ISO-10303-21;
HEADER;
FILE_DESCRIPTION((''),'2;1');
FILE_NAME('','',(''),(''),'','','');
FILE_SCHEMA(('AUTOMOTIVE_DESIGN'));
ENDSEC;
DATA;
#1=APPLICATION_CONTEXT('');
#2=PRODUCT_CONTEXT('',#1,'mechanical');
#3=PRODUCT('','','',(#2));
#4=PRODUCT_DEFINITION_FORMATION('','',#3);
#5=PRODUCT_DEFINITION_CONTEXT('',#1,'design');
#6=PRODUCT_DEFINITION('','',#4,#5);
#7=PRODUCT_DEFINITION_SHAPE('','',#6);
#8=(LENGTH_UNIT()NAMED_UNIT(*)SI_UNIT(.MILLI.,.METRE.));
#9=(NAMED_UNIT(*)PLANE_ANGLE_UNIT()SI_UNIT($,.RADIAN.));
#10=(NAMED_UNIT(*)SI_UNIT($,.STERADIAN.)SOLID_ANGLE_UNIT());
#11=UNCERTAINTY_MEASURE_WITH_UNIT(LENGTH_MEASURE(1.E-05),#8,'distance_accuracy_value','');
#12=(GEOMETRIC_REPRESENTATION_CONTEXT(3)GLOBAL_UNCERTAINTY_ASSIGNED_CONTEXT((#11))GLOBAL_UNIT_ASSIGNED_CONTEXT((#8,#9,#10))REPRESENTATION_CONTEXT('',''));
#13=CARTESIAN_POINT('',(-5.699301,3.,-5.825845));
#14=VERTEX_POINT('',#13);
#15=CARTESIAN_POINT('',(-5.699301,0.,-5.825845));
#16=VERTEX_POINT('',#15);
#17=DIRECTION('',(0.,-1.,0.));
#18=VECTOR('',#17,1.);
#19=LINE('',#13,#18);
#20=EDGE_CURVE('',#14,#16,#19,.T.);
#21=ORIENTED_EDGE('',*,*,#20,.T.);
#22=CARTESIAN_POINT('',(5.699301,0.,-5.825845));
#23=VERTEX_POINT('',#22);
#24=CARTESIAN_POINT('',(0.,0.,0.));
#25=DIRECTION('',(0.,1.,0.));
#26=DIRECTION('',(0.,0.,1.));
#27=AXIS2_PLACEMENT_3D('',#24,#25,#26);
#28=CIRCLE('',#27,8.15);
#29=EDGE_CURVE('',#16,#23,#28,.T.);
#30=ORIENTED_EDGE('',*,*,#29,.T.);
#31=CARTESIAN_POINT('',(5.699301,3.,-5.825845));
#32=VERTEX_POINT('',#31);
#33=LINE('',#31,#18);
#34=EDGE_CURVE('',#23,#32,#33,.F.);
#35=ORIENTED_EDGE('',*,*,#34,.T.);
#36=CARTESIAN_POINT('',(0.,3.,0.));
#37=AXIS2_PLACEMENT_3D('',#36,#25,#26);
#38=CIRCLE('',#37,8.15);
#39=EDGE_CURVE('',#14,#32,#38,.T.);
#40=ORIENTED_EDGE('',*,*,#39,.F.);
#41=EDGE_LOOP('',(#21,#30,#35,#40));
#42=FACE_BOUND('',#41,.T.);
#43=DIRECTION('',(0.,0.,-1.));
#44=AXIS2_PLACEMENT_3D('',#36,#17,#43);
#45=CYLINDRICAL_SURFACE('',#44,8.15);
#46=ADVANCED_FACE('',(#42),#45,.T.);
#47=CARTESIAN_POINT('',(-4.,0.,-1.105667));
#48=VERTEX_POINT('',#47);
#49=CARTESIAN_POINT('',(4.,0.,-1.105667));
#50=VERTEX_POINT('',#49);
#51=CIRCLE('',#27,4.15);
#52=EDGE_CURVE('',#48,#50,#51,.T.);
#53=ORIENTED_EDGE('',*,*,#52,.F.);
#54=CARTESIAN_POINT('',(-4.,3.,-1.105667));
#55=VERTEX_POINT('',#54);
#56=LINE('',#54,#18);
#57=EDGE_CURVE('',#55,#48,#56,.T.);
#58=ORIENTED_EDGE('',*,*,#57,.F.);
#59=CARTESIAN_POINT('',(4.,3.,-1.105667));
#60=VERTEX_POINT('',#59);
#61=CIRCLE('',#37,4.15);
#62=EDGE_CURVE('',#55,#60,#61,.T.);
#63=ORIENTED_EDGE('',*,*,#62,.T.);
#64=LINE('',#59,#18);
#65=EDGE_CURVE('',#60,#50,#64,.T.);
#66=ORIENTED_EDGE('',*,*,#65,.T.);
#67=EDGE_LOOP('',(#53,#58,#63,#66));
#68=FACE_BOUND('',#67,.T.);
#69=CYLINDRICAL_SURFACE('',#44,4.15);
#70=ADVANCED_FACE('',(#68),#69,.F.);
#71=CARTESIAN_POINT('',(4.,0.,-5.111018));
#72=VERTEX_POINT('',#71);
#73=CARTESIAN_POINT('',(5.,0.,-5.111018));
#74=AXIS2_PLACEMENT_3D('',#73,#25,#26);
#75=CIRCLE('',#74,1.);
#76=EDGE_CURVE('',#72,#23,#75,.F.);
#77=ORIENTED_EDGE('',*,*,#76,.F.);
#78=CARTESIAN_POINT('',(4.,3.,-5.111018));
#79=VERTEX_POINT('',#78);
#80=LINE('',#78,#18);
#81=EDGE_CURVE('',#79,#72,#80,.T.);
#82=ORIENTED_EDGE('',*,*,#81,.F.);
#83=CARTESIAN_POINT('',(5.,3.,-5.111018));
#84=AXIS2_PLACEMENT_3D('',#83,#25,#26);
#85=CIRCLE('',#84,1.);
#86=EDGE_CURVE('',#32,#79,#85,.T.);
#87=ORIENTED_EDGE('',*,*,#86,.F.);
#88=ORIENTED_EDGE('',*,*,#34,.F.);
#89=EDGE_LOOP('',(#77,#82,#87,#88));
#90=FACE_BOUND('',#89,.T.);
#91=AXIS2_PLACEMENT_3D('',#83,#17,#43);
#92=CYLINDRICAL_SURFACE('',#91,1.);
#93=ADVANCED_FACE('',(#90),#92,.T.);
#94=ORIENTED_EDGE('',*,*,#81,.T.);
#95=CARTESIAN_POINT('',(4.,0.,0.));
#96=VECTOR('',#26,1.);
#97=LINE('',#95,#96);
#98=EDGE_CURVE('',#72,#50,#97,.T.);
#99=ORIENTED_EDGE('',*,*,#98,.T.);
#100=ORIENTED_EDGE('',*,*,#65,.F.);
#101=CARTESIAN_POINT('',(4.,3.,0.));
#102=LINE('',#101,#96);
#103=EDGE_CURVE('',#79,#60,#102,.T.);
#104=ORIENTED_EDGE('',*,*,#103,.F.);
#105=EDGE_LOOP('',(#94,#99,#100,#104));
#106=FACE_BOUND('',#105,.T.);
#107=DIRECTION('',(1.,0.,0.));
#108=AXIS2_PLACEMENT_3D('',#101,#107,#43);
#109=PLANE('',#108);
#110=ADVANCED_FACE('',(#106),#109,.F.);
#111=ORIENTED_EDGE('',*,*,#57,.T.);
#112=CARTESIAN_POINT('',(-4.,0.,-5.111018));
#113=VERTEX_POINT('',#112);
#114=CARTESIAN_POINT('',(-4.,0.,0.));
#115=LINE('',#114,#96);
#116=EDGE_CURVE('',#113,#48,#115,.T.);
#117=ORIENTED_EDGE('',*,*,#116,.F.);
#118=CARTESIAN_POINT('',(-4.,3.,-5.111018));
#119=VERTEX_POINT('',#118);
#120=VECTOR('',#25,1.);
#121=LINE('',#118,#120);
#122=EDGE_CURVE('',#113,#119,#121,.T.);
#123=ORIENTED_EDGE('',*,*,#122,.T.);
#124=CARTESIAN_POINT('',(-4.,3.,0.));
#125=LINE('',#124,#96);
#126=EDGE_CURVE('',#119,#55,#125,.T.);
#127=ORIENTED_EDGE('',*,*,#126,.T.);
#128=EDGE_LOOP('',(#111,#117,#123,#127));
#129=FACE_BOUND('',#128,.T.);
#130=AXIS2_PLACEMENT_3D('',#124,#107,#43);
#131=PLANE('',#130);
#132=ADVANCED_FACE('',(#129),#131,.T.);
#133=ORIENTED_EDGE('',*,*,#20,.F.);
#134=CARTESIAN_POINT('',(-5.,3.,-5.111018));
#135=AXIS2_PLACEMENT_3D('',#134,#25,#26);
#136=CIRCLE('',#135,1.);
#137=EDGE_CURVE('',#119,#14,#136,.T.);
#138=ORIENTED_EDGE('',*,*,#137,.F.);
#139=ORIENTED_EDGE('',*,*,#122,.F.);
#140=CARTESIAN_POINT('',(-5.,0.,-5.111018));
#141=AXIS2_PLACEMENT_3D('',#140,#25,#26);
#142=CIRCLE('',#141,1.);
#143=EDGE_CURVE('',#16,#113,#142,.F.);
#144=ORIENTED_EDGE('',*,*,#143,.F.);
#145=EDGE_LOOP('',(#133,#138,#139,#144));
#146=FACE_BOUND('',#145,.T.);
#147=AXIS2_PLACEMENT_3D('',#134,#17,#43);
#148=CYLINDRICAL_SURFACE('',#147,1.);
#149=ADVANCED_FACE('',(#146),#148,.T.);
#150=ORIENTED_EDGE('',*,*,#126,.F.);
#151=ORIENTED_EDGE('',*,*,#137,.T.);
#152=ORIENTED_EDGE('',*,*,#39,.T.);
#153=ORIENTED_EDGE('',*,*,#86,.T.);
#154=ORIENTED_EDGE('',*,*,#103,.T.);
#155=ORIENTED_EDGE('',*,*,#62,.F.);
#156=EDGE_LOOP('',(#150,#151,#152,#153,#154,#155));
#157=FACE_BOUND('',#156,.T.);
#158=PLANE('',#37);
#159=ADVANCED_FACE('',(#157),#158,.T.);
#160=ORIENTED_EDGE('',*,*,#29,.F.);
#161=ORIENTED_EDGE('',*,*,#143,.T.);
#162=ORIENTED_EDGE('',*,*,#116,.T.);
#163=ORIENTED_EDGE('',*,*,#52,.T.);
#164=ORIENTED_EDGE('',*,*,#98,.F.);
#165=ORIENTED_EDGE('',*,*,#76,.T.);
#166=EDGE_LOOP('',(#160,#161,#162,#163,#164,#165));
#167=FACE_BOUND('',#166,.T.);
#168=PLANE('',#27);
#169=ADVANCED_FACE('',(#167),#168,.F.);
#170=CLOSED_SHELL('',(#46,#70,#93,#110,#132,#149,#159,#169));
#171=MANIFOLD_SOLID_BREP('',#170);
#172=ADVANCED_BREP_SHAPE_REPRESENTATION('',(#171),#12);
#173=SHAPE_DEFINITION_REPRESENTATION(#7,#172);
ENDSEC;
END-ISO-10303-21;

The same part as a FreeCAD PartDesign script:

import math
import FreeCAD as App
import Part
import Sketcher

V = App.Vector


def edges_at(feature, points):
    """Names of the edges that pass closest to the given points."""
    edges = feature.Shape.Edges
    near = lambda p: min(range(len(edges)), key=lambda i: edges[i].distToShape(Part.Vertex(*p))[0])
    return sorted({f"Edge{near(p) + 1}" for p in points})

doc = App.newDocument("Part")
body = doc.addObject("PartDesign::Body", "Body")

# Sketch on XZ plane
sketch1 = body.newObject("Sketcher::SketchObject", "Sketch")
sketch1.AttachmentSupport = (doc.getObject("XZ_Plane"), [""])
sketch1.MapMode = "FlatFace"
sketch1.addGeometry([
    Part.ArcOfCircle(Part.Circle(V(0, 0, 0), V(0, 0, 1), 8.1), math.radians(-61), math.radians(0)),  # 0
    Part.LineSegment(V(4, -7.1, 0), V(4, -1.1, 0)),  # 1
    Part.ArcOfCircle(Part.Circle(V(0, 0, 0), V(0, 0, 1), 4.1), math.radians(-15.45), math.radians(0)),  # 2
    Part.ArcOfCircle(Part.Circle(V(0, 0, 0), V(0, 0, 1), 4.2), math.radians(0), math.radians(195)),  # 3
    Part.LineSegment(V(-4, -1.1, 0), V(-4, -7.1, 0)),  # 4
    Part.ArcOfCircle(Part.Circle(V(0, 0, 0), V(0, 0, 1), 8.2), math.radians(0), math.radians(241)),  # 5
], False)
sketch1.addConstraint([
    Sketcher.Constraint("Coincident", 0, 1, 1, 1),
    Sketcher.Constraint("Coincident", 1, 2, 2, 1),
    Sketcher.Constraint("Tangent", 2, 2, 3, 1),
    Sketcher.Constraint("Coincident", 3, 2, 4, 1),
    Sketcher.Constraint("Coincident", 4, 2, 5, 2),
    Sketcher.Constraint("Tangent", 5, 1, 0, 2),
    Sketcher.Constraint("Vertical", 1),
    Sketcher.Constraint("Vertical", 4),
    Sketcher.Constraint("Coincident", 0, 3, -1, 1),
    Sketcher.Constraint("Coincident", 2, 3, -1, 1),
    Sketcher.Constraint("Equal", 2, 3),
    Sketcher.Constraint("Equal", 0, 5),
    Sketcher.Constraint("PointOnObject", 2, 2, -1),
    Sketcher.Constraint("PointOnObject", 5, 1, -1),
    Sketcher.Constraint("Horizontal", 1, 2, 3, 2),
    Sketcher.Constraint("Radius", 0, 8.15),
    Sketcher.Constraint("Radius", 2, 4.15),
    Sketcher.Constraint("DistanceX", -1, 1, 0, 1, 4.0),
])
pad1 = body.newObject("PartDesign::Pad", "Pad")
pad1.Profile = sketch1
pad1.Length = 3
pad1.Reversed = True
doc.recompute()

fillet = body.newObject("PartDesign::Fillet", "Fillet")
fillet.Base = (pad1, edges_at(pad1, [(4, 1.5, -7.101), (-4, 1.5, -7.101)]))
fillet.Radius = 1

doc.recompute()
